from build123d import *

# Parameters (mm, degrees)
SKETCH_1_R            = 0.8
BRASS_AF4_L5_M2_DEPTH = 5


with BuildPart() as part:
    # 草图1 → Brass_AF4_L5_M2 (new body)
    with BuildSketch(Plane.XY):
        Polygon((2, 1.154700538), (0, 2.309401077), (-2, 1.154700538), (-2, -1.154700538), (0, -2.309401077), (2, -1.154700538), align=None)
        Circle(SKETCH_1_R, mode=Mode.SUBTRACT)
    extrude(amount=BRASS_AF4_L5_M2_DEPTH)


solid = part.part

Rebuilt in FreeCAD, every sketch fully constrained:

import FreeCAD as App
import Part
import Sketcher
from FreeCAD import Vector
Q = App.Units.Quantity

doc = App.newDocument("Part")
params = doc.addObject("Spreadsheet::Sheet", "Params")
for row, (alias, value) in enumerate([
    ("sketch1_diameter", "1.6 mm"),
    ("pad1_length", "5 mm"),
], start=1):
    params.set(f"A{row}", alias)
    params.set(f"B{row}", "=" + value)
    params.setAlias(f"B{row}", alias)

body = doc.addObject("PartDesign::Body", "Body")

# Sketch on XY plane
sketch1 = body.newObject("Sketcher::SketchObject", "Sketch")
sketch1.AttachmentSupport = (doc.getObject("XY_Plane"), [""])
sketch1.MapMode = "FlatFace"
sketch1.addGeometry([
    Part.LineSegment(Vector(2, 1.154701, 0), Vector(0, 2.309401, 0)),  # 0
    Part.LineSegment(Vector(0, 2.309401, 0), Vector(-2, 1.154701, 0)),  # 1
    Part.LineSegment(Vector(-2, 1.154701, 0), Vector(-2, -1.154701, 0)),  # 2
    Part.LineSegment(Vector(-2, -1.154701, 0), Vector(0, -2.309401, 0)),  # 3
    Part.LineSegment(Vector(0, -2.309401, 0), Vector(2, -1.154701, 0)),  # 4
    Part.LineSegment(Vector(2, -1.154701, 0), Vector(2, 1.154701, 0)),  # 5
    Part.Circle(Vector(0, 0, 0), Vector(0, 0, 1), 0.8),  # 6
], False)
sketch1.addConstraint([
    Sketcher.Constraint("Coincident", 0, 2, 1, 1),
    Sketcher.Constraint("Coincident", 1, 2, 2, 1),
    Sketcher.Constraint("Coincident", 2, 2, 3, 1),
    Sketcher.Constraint("Coincident", 3, 2, 4, 1),
    Sketcher.Constraint("Coincident", 4, 2, 5, 1),
    Sketcher.Constraint("Coincident", 5, 2, 0, 1),
    Sketcher.Constraint("Vertical", 2),
    Sketcher.Constraint("Vertical", 5),
    Sketcher.Constraint("Coincident", 6, 3, -1, 1),
    Sketcher.Constraint("Symmetric", 0, 2, 3, 2, -1, 1),
    Sketcher.Constraint("Symmetric", 1, 2, 4, 2, -1, 1),
    Sketcher.Constraint("PointOnObject", 0, 2, -2),
    Sketcher.Constraint("Parallel", 0, 3),
    Sketcher.Constraint("Horizontal", 2, 2, 4, 2),
    Sketcher.Constraint("Diameter", 6, Q("1.6 mm")),
    Sketcher.Constraint("Angle", 0, Q("150 deg")),
    Sketcher.Constraint("DistanceX", 1, 2, -1, 1, Q("2 mm")),
    Sketcher.Constraint("DistanceY", 2, 2, 2, 1, Q("2.309401 mm")),
])
sketch1.setExpression("Constraints[14]", "Params.sketch1_diameter")
pad1 = body.newObject("PartDesign::Pad", "Pad")
pad1.Profile = sketch1
pad1.setExpression("Length", "Params.pad1_length")

doc.recompute()
